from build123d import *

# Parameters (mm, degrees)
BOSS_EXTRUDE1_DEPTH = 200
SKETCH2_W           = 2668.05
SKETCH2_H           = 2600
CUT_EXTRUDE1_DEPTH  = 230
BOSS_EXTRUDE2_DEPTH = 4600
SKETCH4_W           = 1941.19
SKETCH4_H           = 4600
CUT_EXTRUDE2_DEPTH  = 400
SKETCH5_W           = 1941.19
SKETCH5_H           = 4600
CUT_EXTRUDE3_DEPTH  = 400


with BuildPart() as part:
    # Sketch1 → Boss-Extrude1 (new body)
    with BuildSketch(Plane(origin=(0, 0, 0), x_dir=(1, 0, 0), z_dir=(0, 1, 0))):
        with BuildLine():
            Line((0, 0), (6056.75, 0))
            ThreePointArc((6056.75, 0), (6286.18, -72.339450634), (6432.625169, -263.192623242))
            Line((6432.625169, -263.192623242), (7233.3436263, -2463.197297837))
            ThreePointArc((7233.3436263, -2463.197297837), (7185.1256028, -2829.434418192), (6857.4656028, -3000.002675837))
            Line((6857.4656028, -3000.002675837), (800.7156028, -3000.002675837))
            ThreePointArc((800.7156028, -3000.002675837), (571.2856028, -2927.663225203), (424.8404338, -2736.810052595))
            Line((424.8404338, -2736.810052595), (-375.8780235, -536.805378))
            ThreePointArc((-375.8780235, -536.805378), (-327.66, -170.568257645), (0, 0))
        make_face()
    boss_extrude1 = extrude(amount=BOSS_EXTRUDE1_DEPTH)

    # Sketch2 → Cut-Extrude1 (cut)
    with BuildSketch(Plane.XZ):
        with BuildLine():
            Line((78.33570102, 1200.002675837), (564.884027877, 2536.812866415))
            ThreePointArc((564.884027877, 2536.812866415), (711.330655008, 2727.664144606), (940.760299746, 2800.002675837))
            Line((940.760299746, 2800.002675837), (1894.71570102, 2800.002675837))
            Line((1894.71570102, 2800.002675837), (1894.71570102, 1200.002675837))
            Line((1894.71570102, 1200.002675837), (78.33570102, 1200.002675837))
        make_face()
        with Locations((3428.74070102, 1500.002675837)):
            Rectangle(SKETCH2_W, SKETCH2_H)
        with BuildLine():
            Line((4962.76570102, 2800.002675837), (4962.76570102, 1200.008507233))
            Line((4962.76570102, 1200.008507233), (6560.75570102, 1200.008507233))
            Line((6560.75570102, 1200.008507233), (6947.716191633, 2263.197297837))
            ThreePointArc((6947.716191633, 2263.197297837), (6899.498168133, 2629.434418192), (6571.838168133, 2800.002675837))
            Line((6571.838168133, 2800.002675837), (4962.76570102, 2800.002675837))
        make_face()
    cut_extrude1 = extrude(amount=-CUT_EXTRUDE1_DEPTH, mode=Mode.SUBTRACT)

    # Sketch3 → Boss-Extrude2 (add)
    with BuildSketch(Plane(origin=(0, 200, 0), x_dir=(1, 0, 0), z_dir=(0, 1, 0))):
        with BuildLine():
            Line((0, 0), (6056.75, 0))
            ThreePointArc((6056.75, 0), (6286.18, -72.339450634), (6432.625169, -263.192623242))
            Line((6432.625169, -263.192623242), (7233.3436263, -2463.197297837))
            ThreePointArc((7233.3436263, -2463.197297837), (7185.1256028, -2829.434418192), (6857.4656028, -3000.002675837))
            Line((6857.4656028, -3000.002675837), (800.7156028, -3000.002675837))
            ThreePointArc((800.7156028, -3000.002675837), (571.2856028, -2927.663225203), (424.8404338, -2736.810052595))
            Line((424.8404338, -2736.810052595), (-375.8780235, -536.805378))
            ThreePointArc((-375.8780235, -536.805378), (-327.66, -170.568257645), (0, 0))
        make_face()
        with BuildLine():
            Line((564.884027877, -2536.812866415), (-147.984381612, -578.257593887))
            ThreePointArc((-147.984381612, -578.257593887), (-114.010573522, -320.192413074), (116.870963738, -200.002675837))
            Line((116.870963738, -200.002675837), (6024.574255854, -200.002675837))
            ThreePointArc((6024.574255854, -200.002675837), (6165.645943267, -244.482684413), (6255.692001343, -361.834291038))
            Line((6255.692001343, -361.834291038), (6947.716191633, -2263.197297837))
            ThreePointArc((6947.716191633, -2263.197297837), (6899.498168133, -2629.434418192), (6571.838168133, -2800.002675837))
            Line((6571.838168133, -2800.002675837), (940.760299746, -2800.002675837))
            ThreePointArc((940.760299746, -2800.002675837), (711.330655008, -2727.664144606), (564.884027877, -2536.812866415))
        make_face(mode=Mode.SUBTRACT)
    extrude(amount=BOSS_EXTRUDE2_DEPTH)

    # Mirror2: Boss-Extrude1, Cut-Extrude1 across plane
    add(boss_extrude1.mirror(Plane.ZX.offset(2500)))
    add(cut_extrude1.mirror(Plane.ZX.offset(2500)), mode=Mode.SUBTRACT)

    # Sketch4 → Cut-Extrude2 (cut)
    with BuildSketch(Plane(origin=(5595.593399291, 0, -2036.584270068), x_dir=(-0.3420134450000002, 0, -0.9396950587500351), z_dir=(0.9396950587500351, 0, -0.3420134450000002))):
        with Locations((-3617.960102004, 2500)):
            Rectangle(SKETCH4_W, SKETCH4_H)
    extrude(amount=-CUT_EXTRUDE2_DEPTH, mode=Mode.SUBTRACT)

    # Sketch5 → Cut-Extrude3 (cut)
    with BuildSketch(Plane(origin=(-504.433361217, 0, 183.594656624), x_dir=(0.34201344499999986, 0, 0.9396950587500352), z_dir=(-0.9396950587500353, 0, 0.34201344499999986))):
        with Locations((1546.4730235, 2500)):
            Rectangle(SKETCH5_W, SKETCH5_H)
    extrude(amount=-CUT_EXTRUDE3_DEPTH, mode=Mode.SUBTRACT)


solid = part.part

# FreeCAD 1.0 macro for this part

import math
import FreeCAD as App
import Part
import Sketcher
from FreeCAD import Vector
Q = App.Units.Quantity

doc = App.newDocument("Part")
params = doc.addObject("Spreadsheet::Sheet", "Params")
for row, (alias, value) in enumerate([
    ("sketch1_radius", "400 mm"),
    ("sketch1_width", "6056.75 mm"),
    ("sketch1_length", "2341.19 mm"),
    ("pad1_length", "200 mm"),
    ("sketch2_radius", "400 mm"),
    ("sketch2_height", "1600 mm"),
    ("sketch2_height2", "2600 mm"),
    ("sketch2_length", "1422.6 mm"),
    ("sketch2_width", "1816.38 mm"),
    ("pocket1_length", "230 mm"),
    ("sketch3_radius", "400 mm"),
    ("sketch3_width", "6056.75 mm"),
    ("sketch3_length", "2341.19 mm"),
    ("pad2_length", "4600 mm"),
    ("sketch4_width", "1941.190001 mm"),
    ("pocket2_length", "400 mm"),
    ("sketch5_width", "1941.190001 mm"),
    ("pocket3_length", "400 mm"),
], start=1):
    params.set(f"A{row}", alias)
    params.set(f"B{row}", "=" + value)
    params.setAlias(f"B{row}", alias)

body = doc.addObject("PartDesign::Body", "Body")

sketch1 = body.newObject("Sketcher::SketchObject", "Sketch")
sketch1.AttachmentSupport = (doc.getObject("XZ_Plane"), [""])
sketch1.MapMode = "FlatFace"
sketch1.addGeometry(Part.LineSegment(Vector(6057, 0, 0), Vector(0, 0, 0)), False)
sketch1.addGeometry(Part.ArcOfCircle(Part.Circle(Vector(0, 400, 0), Vector(0, 0, 1), 400), math.radians(160), math.radians(270)), False)
sketch1.addGeometry(Part.LineSegment(Vector(-376, 537, 0), Vector(425, 2737, 0)), False)
sketch1.addGeometry(Part.ArcOfCircle(Part.Circle(Vector(801, 2600, 0), Vector(0, 0, 1), 400), math.radians(90), math.radians(160)), False)
sketch1.addGeometry(Part.LineSegment(Vector(801, 3000, 0), Vector(6857, 3000, 0)), False)
sketch1.addGeometry(Part.ArcOfCircle(Part.Circle(Vector(6857, 2600, 0), Vector(0, 0, 1), 400), math.radians(-20), math.radians(90)), False)
sketch1.addGeometry(Part.LineSegment(Vector(7233, 2463, 0), Vector(6433, 263, 0)), False)
sketch1.addGeometry(Part.ArcOfCircle(Part.Circle(Vector(6057, 400, 0), Vector(0, 0, 1), 400), math.radians(-90), math.radians(-20)), False)
sketch1.addConstraint(Sketcher.Constraint("Tangent", 0, 2, 1, 2))
sketch1.addConstraint(Sketcher.Constraint("Tangent", 1, 1, 2, 1))
sketch1.addConstraint(Sketcher.Constraint("Tangent", 2, 2, 3, 2))
sketch1.addConstraint(Sketcher.Constraint("Tangent", 3, 1, 4, 1))
sketch1.addConstraint(Sketcher.Constraint("Tangent", 4, 2, 5, 2))
sketch1.addConstraint(Sketcher.Constraint("Tangent", 5, 1, 6, 1))
sketch1.addConstraint(Sketcher.Constraint("Tangent", 6, 2, 7, 2))
sketch1.addConstraint(Sketcher.Constraint("Tangent", 7, 1, 0, 1))
sketch1.addConstraint(Sketcher.Constraint("Horizontal", 0))
sketch1.addConstraint(Sketcher.Constraint("Horizontal", 4))
sketch1.addConstraint(Sketcher.Constraint("Coincident", 0, 2, -1, 1))
sketch1.addConstraint(Sketcher.Constraint("Equal", 1, 5))
sketch1.addConstraint(Sketcher.Constraint("Equal", 3, 7))
sketch1.addConstraint(Sketcher.Constraint("Parallel", 2, 6))
sketch1.addConstraint(Sketcher.Constraint("Radius", 1, Q("400 mm")))
sketch1.addConstraint(Sketcher.Constraint("DistanceX", 0, 2, 0, 1, Q("6056.75 mm")))
sketch1.addConstraint(Sketcher.Constraint("Distance", 2, Q("2341.19 mm")))
sketch1.addConstraint(Sketcher.Constraint("Radius", 3, Q("399.996962 mm")))
sketch1.addConstraint(Sketcher.Constraint("DistanceX", -1, 1, 6, 2, Q("6432.625169 mm")))
sketch1.setExpression("Constraints[14]", "Params.sketch1_radius")
sketch1.setExpression("Constraints[15]", "Params.sketch1_width")
sketch1.setExpression("Constraints[16]", "Params.sketch1_length")
pad1 = body.newObject("PartDesign::Pad", "Pad")
pad1.Profile = sketch1
pad1.setExpression("Length", "Params.pad1_length")
pad1.Reversed = True

sketch2 = body.newObject("Sketcher::SketchObject", "Sketch001")
sketch2.AttachmentSupport = (doc.getObject("XZ_Plane"), [""])
sketch2.MapMode = "FlatFace"
sketch2.addGeometry(Part.LineSegment(Vector(565, 2537, 0), Vector(78, 1200, 0)), False)
sketch2.addGeometry(Part.LineSegment(Vector(78, 1200, 0), Vector(1895, 1200, 0)), False)
sketch2.addGeometry(Part.LineSegment(Vector(1895, 1200, 0), Vector(1895, 2800, 0)), False)
sketch2.addGeometry(Part.LineSegment(Vector(1895, 2800, 0), Vector(941, 2800, 0)), False)
sketch2.addGeometry(Part.ArcOfCircle(Part.Circle(Vector(941, 2400, 0), Vector(0, 0, 1), 400), math.radians(90), math.radians(160)), False)
sketch2.addGeometry(Part.LineSegment(Vector(2095, 2800, 0), Vector(2095, 200, 0)), False)
sketch2.addGeometry(Part.LineSegment(Vector(2095, 200, 0), Vector(4763, 200, 0)), False)
sketch2.addGeometry(Part.LineSegment(Vector(4763, 200, 0), Vector(4763, 2800, 0)), False)
sketch2.addGeometry(Part.LineSegment(Vector(4763, 2800, 0), Vector(2095, 2800, 0)), False)
sketch2.addGeometry(Part.LineSegment(Vector(4963, 2800, 0), Vector(4963, 1200, 0)), False)
sketch2.addGeometry(Part.LineSegment(Vector(4963, 1200, 0), Vector(6561, 1200, 0)), False)
sketch2.addGeometry(Part.LineSegment(Vector(6561, 1200, 0), Vector(6948, 2263, 0)), False)
sketch2.addGeometry(Part.ArcOfCircle(Part.Circle(Vector(6572, 2400, 0), Vector(0, 0, 1), 400), math.radians(-20), math.radians(90)), False)
sketch2.addGeometry(Part.LineSegment(Vector(6572, 2800, 0), Vector(4963, 2800, 0)), False)
sketch2.addConstraint(Sketcher.Constraint("Coincident", 0, 2, 1, 1))
sketch2.addConstraint(Sketcher.Constraint("Coincident", 1, 2, 2, 1))
sketch2.addConstraint(Sketcher.Constraint("Coincident", 2, 2, 3, 1))
sketch2.addConstraint(Sketcher.Constraint("Tangent", 3, 2, 4, 1))
sketch2.addConstraint(Sketcher.Constraint("Coincident", 4, 2, 0, 1))
sketch2.addConstraint(Sketcher.Constraint("Coincident", 5, 2, 6, 1))
sketch2.addConstraint(Sketcher.Constraint("Coincident", 6, 2, 7, 1))
sketch2.addConstraint(Sketcher.Constraint("Coincident", 7, 2, 8, 1))
sketch2.addConstraint(Sketcher.Constraint("Coincident", 8, 2, 5, 1))
sketch2.addConstraint(Sketcher.Constraint("Coincident", 9, 2, 10, 1))
sketch2.addConstraint(Sketcher.Constraint("Coincident", 10, 2, 11, 1))
sketch2.addConstraint(Sketcher.Constraint("Tangent", 11, 2, 12, 1))
sketch2.addConstraint(Sketcher.Constraint("Tangent", 12, 2, 13, 1))
sketch2.addConstraint(Sketcher.Constraint("Coincident", 13, 2, 9, 1))
sketch2.addConstraint(Sketcher.Constraint("Horizontal", 1))
sketch2.addConstraint(Sketcher.Constraint("Vertical", 2))
sketch2.addConstraint(Sketcher.Constraint("Horizontal", 3))
sketch2.addConstraint(Sketcher.Constraint("Vertical", 5))
sketch2.addConstraint(Sketcher.Constraint("Horizontal", 6))
sketch2.addConstraint(Sketcher.Constraint("Vertical", 7))
sketch2.addConstraint(Sketcher.Constraint("Horizontal", 8))
sketch2.addConstraint(Sketcher.Constraint("Vertical", 9))
sketch2.addConstraint(Sketcher.Constraint("Horizontal", 10))
sketch2.addConstraint(Sketcher.Constraint("Horizontal", 13))
sketch2.addConstraint(Sketcher.Constraint("Equal", 4, 12))
sketch2.addConstraint(Sketcher.Constraint("Parallel", 0, 11))
sketch2.addConstraint(Sketcher.Constraint("Horizontal", 4, 3, 12, 3))
sketch2.addConstraint(Sketcher.Constraint("Horizontal", 3, 2, 7, 2))
sketch2.addConstraint(Sketcher.Constraint("Radius", 4, Q("400 mm")))
sketch2.addConstraint(Sketcher.Constraint("DistanceY", 2, 1, 2, 2, Q("1600 mm")))
sketch2.addConstraint(Sketcher.Constraint("DistanceY", 5, 2, 5, 1, Q("2600 mm")))
sketch2.addConstraint(Sketcher.Constraint("DistanceX", 1, 2, 5, 2, Q("200 mm")))
sketch2.addConstraint(Sketcher.Constraint("DistanceX", 6, 2, 9, 2, Q("200 mm")))
sketch2.addConstraint(Sketcher.Constraint("Distance", 0, Q("1422.6 mm")))
sketch2.addConstraint(Sketcher.Constraint("DistanceX", 1, 1, 1, 2, Q("1816.38 mm")))
sketch2.addConstraint(Sketcher.Constraint("DistanceX", 6, 1, 6, 2, Q("2668.05 mm")))
sketch2.addConstraint(Sketcher.Constraint("DistanceX", 10, 1, 10, 2, Q("1597.99 mm")))
sketch2.addConstraint(Sketcher.Constraint("DistanceX", 3, 2, 3, 1, Q("953.955401 mm")))
sketch2.addConstraint(Sketcher.Constraint("DistanceY", 9, 2, 9, 1, Q("1599.994169 mm")))
sketch2.addConstraint(Sketcher.Constraint("DistanceX", -1, 1, 4, 3, Q("940.7603 mm")))
sketch2.addConstraint(Sketcher.Constraint("DistanceY", -1, 1, 4, 3, Q("2400.002676 mm")))
sketch2.setExpression("Constraints[28]", "Params.sketch2_radius")
sketch2.setExpression("Constraints[29]", "Params.sketch2_height")
sketch2.setExpression("Constraints[30]", "Params.sketch2_height2")
sketch2.setExpression("Constraints[33]", "Params.sketch2_length")
sketch2.setExpression("Constraints[34]", "Params.sketch2_width")
pocket1 = body.newObject("PartDesign::Pocket", "Pocket")
pocket1.Profile = sketch2
pocket1.setExpression("Length", "Params.pocket1_length")

sketch3 = body.newObject("Sketcher::SketchObject", "Sketch002")
sketch3.AttachmentSupport = (doc.getObject("XZ_Plane"), [""])
sketch3.MapMode = "FlatFace"
sketch3.AttachmentOffset = App.Placement(Vector(0, 0, -200), App.Rotation())
sketch3.addGeometry(Part.LineSegment(Vector(6057, 0, 0), Vector(0, 0, 0)), False)
sketch3.addGeometry(Part.ArcOfCircle(Part.Circle(Vector(0, 400, 0), Vector(0, 0, 1), 400), math.radians(160), math.radians(270)), False)
sketch3.addGeometry(Part.LineSegment(Vector(-376, 537, 0), Vector(425, 2737, 0)), False)
sketch3.addGeometry(Part.ArcOfCircle(Part.Circle(Vector(801, 2600, 0), Vector(0, 0, 1), 400), math.radians(90), math.radians(160)), False)
sketch3.addGeometry(Part.LineSegment(Vector(801, 3000, 0), Vector(6857, 3000, 0)), False)
sketch3.addGeometry(Part.ArcOfCircle(Part.Circle(Vector(6857, 2600, 0), Vector(0, 0, 1), 400), math.radians(-20), math.radians(90)), False)
sketch3.addGeometry(Part.LineSegment(Vector(7233, 2463, 0), Vector(6433, 263, 0)), False)
sketch3.addGeometry(Part.ArcOfCircle(Part.Circle(Vector(6057, 400, 0), Vector(0, 0, 1), 400), math.radians(-90), math.radians(-20)), False)
sketch3.addGeometry(Part.LineSegment(Vector(565, 2537, 0), Vector(-148, 578, 0)), False)
sketch3.addGeometry(Part.ArcOfCircle(Part.Circle(Vector(117, 482, 0), Vector(0, 0, 1), 282), math.radians(160), math.radians(270)), False)
sketch3.addGeometry(Part.LineSegment(Vector(117, 200, 0), Vector(6025, 200, 0)), False)
sketch3.addGeometry(Part.ArcOfCircle(Part.Circle(Vector(6025, 446, 0), Vector(0, 0, 1), 246), math.radians(-90), math.radians(-20)), False)
sketch3.addGeometry(Part.LineSegment(Vector(6256, 362, 0), Vector(6948, 2263, 0)), False)
sketch3.addGeometry(Part.ArcOfCircle(Part.Circle(Vector(6572, 2400, 0), Vector(0, 0, 1), 400), math.radians(-20), math.radians(90)), False)
sketch3.addGeometry(Part.LineSegment(Vector(6572, 2800, 0), Vector(941, 2800, 0)), False)
sketch3.addGeometry(Part.ArcOfCircle(Part.Circle(Vector(941, 2400, 0), Vector(0, 0, 1), 400), math.radians(90), math.radians(160)), False)
sketch3.addConstraint(Sketcher.Constraint("Tangent", 0, 2, 1, 2))
sketch3.addConstraint(Sketcher.Constraint("Tangent", 1, 1, 2, 1))
sketch3.addConstraint(Sketcher.Constraint("Tangent", 2, 2, 3, 2))
sketch3.addConstraint(Sketcher.Constraint("Tangent", 3, 1, 4, 1))
sketch3.addConstraint(Sketcher.Constraint("Tangent", 4, 2, 5, 2))
sketch3.addConstraint(Sketcher.Constraint("Tangent", 5, 1, 6, 1))
sketch3.addConstraint(Sketcher.Constraint("Tangent", 6, 2, 7, 2))
sketch3.addConstraint(Sketcher.Constraint("Tangent", 7, 1, 0, 1))
sketch3.addConstraint(Sketcher.Constraint("Tangent", 8, 2, 9, 1))
sketch3.addConstraint(Sketcher.Constraint("Tangent", 9, 2, 10, 1))
sketch3.addConstraint(Sketcher.Constraint("Tangent", 10, 2, 11, 1))
sketch3.addConstraint(Sketcher.Constraint("Tangent", 11, 2, 12, 1))
sketch3.addConstraint(Sketcher.Constraint("Tangent", 12, 2, 13, 1))
sketch3.addConstraint(Sketcher.Constraint("Tangent", 13, 2, 14, 1))
sketch3.addConstraint(Sketcher.Constraint("Tangent", 14, 2, 15, 1))
sketch3.addConstraint(Sketcher.Constraint("Tangent", 15, 2, 8, 1))
sketch3.addConstraint(Sketcher.Constraint("Horizontal", 0))
sketch3.addConstraint(Sketcher.Constraint("Horizontal", 4))
sketch3.addConstraint(Sketcher.Constraint("Horizontal", 10))
sketch3.addConstraint(Sketcher.Constraint("Horizontal", 14))
sketch3.addConstraint(Sketcher.Constraint("Coincident", 0, 2, -1, 1))
sketch3.addConstraint(Sketcher.Constraint("Equal", 1, 5))
sketch3.addConstraint(Sketcher.Constraint("Equal", 3, 7))
sketch3.addConstraint(Sketcher.Constraint("Equal", 5, 13))
sketch3.addConstraint(Sketcher.Constraint("Equal", 13, 15))
sketch3.addConstraint(Sketcher.Constraint("Parallel", 2, 6))
sketch3.addConstraint(Sketcher.Constraint("Parallel", 6, 12))
sketch3.addConstraint(Sketcher.Constraint("Radius", 1, Q("400 mm")))
sketch3.addConstraint(Sketcher.Constraint("DistanceY", 13, 3, 5, 3, Q("200 mm")))
sketch3.addConstraint(Sketcher.Constraint("DistanceY", 10, 2, 13, 3, Q("2200 mm")))
sketch3.addConstraint(Sketcher.Constraint("DistanceX", 0, 2, 0, 1, Q("6056.75 mm")))
sketch3.addConstraint(Sketcher.Constraint("Distance", 2, Q("2341.19 mm")))
sketch3.addConstraint(Sketcher.Constraint("Radius", 11, Q("245.949729 mm")))
sketch3.addConstraint(Sketcher.Constraint("Distance", 12, Q("2023.383 mm")))
sketch3.addConstraint(Sketcher.Constraint("DistanceX", -1, 1, 11, 2, Q("6255.692001 mm")))
sketch3.addConstraint(Sketcher.Constraint("Radius", 3, Q("399.996962 mm")))
sketch3.addConstraint(Sketcher.Constraint("Radius", 9, Q("281.853754 mm")))
sketch3.addConstraint(Sketcher.Constraint("DistanceX", 14, 2, 14, 1, Q("5631.077868 mm")))
sketch3.addConstraint(Sketcher.Constraint("DistanceX", 10, 1, 10, 2, Q("5907.703292 mm")))
sketch3.setExpression("Constraints[27]", "Params.sketch3_radius")
sketch3.setExpression("Constraints[30]", "Params.sketch3_width")
sketch3.setExpression("Constraints[31]", "Params.sketch3_length")
pad2 = body.newObject("PartDesign::Pad", "Pad001")
pad2.Profile = sketch3
pad2.setExpression("Length", "Params.pad2_length")
pad2.Reversed = True
doc.recompute()

datumplane = body.newObject("PartDesign::Plane", "DatumPlane")
datumplane.AttachmentSupport = (doc.getObject("XZ_Plane"), [""])
datumplane.MapMode = "FlatFace"
datumplane.AttachmentOffset = App.Placement(Vector(0, 0, -2500), App.Rotation())
mirrored = body.newObject("PartDesign::Mirrored", "Mirrored")
mirrored.Originals = [pad1, pocket1]
mirrored.MirrorPlane = (datumplane, [""])
body.Tip = mirrored

sketch4 = body.newObject("Sketcher::SketchObject", "Sketch003")
sketch4.Placement = App.Placement(Vector(5595.593399, 0, -2036.58427), App.Rotation(Vector(-0.342013445, 0, -0.939695059), Vector(0, 1, 0), Vector(0.939695059, 0, -0.342013445), "ZXY"))
sketch4.addGeometry(Part.LineSegment(Vector(-4589, 4800, 0), Vector(-4589, 200, 0)), False)
sketch4.addGeometry(Part.LineSegment(Vector(-4589, 200, 0), Vector(-2647, 200, 0)), False)
sketch4.addGeometry(Part.LineSegment(Vector(-2647, 200, 0), Vector(-2647, 4800, 0)), False)
sketch4.addGeometry(Part.LineSegment(Vector(-2647, 4800, 0), Vector(-4589, 4800, 0)), False)
sketch4.addConstraint(Sketcher.Constraint("Coincident", 0, 2, 1, 1))
sketch4.addConstraint(Sketcher.Constraint("Coincident", 1, 2, 2, 1))
sketch4.addConstraint(Sketcher.Constraint("Coincident", 2, 2, 3, 1))
sketch4.addConstraint(Sketcher.Constraint("Coincident", 3, 2, 0, 1))
sketch4.addConstraint(Sketcher.Constraint("Vertical", 0))
sketch4.addConstraint(Sketcher.Constraint("Horizontal", 1))
sketch4.addConstraint(Sketcher.Constraint("Vertical", 2))
sketch4.addConstraint(Sketcher.Constraint("Horizontal", 3))
sketch4.addConstraint(Sketcher.Constraint("DistanceY", -1, 1, 0, 2, Q("200 mm")))
sketch4.addConstraint(Sketcher.Constraint("DistanceX", 1, 1, 1, 2, Q("1941.190001 mm")))
sketch4.addConstraint(Sketcher.Constraint("DistanceY", 0, 2, 0, 1, Q("4600.000004 mm")))
sketch4.addConstraint(Sketcher.Constraint("DistanceX", 0, 2, -1, 1, Q("4588.555104 mm")))
sketch4.setExpression("Constraints[9]", "Params.sketch4_width")
pocket2 = body.newObject("PartDesign::Pocket", "Pocket001")
pocket2.Profile = sketch4
pocket2.setExpression("Length", "Params.pocket2_length")

sketch5 = body.newObject("Sketcher::SketchObject", "Sketch004")
sketch5.Placement = App.Placement(Vector(-504.433361, 0, 183.594657), App.Rotation(Vector(0.342013445, 0, 0.939695059), Vector(0, 1, 0), Vector(-0.939695059, 0, 0.342013445), "ZXY"))
sketch5.addGeometry(Part.LineSegment(Vector(576, 4800, 0), Vector(576, 200, 0)), False)
sketch5.addGeometry(Part.LineSegment(Vector(576, 200, 0), Vector(2517, 200, 0)), False)
sketch5.addGeometry(Part.LineSegment(Vector(2517, 200, 0), Vector(2517, 4800, 0)), False)
sketch5.addGeometry(Part.LineSegment(Vector(2517, 4800, 0), Vector(576, 4800, 0)), False)
sketch5.addConstraint(Sketcher.Constraint("Coincident", 0, 2, 1, 1))
sketch5.addConstraint(Sketcher.Constraint("Coincident", 1, 2, 2, 1))
sketch5.addConstraint(Sketcher.Constraint("Coincident", 2, 2, 3, 1))
sketch5.addConstraint(Sketcher.Constraint("Coincident", 3, 2, 0, 1))
sketch5.addConstraint(Sketcher.Constraint("Vertical", 0))
sketch5.addConstraint(Sketcher.Constraint("Horizontal", 1))
sketch5.addConstraint(Sketcher.Constraint("Vertical", 2))
sketch5.addConstraint(Sketcher.Constraint("Horizontal", 3))
sketch5.addConstraint(Sketcher.Constraint("DistanceY", -1, 1, 0, 2, Q("200 mm")))
sketch5.addConstraint(Sketcher.Constraint("DistanceX", 1, 1, 1, 2, Q("1941.190001 mm")))
sketch5.addConstraint(Sketcher.Constraint("DistanceY", 0, 2, 0, 1, Q("4600.000004 mm")))
sketch5.addConstraint(Sketcher.Constraint("DistanceX", -1, 1, 0, 2, Q("575.878024 mm")))
sketch5.setExpression("Constraints[9]", "Params.sketch5_width")
pocket3 = body.newObject("PartDesign::Pocket", "Pocket002")
pocket3.Profile = sketch5
pocket3.setExpression("Length", "Params.pocket3_length")

doc.recompute()
